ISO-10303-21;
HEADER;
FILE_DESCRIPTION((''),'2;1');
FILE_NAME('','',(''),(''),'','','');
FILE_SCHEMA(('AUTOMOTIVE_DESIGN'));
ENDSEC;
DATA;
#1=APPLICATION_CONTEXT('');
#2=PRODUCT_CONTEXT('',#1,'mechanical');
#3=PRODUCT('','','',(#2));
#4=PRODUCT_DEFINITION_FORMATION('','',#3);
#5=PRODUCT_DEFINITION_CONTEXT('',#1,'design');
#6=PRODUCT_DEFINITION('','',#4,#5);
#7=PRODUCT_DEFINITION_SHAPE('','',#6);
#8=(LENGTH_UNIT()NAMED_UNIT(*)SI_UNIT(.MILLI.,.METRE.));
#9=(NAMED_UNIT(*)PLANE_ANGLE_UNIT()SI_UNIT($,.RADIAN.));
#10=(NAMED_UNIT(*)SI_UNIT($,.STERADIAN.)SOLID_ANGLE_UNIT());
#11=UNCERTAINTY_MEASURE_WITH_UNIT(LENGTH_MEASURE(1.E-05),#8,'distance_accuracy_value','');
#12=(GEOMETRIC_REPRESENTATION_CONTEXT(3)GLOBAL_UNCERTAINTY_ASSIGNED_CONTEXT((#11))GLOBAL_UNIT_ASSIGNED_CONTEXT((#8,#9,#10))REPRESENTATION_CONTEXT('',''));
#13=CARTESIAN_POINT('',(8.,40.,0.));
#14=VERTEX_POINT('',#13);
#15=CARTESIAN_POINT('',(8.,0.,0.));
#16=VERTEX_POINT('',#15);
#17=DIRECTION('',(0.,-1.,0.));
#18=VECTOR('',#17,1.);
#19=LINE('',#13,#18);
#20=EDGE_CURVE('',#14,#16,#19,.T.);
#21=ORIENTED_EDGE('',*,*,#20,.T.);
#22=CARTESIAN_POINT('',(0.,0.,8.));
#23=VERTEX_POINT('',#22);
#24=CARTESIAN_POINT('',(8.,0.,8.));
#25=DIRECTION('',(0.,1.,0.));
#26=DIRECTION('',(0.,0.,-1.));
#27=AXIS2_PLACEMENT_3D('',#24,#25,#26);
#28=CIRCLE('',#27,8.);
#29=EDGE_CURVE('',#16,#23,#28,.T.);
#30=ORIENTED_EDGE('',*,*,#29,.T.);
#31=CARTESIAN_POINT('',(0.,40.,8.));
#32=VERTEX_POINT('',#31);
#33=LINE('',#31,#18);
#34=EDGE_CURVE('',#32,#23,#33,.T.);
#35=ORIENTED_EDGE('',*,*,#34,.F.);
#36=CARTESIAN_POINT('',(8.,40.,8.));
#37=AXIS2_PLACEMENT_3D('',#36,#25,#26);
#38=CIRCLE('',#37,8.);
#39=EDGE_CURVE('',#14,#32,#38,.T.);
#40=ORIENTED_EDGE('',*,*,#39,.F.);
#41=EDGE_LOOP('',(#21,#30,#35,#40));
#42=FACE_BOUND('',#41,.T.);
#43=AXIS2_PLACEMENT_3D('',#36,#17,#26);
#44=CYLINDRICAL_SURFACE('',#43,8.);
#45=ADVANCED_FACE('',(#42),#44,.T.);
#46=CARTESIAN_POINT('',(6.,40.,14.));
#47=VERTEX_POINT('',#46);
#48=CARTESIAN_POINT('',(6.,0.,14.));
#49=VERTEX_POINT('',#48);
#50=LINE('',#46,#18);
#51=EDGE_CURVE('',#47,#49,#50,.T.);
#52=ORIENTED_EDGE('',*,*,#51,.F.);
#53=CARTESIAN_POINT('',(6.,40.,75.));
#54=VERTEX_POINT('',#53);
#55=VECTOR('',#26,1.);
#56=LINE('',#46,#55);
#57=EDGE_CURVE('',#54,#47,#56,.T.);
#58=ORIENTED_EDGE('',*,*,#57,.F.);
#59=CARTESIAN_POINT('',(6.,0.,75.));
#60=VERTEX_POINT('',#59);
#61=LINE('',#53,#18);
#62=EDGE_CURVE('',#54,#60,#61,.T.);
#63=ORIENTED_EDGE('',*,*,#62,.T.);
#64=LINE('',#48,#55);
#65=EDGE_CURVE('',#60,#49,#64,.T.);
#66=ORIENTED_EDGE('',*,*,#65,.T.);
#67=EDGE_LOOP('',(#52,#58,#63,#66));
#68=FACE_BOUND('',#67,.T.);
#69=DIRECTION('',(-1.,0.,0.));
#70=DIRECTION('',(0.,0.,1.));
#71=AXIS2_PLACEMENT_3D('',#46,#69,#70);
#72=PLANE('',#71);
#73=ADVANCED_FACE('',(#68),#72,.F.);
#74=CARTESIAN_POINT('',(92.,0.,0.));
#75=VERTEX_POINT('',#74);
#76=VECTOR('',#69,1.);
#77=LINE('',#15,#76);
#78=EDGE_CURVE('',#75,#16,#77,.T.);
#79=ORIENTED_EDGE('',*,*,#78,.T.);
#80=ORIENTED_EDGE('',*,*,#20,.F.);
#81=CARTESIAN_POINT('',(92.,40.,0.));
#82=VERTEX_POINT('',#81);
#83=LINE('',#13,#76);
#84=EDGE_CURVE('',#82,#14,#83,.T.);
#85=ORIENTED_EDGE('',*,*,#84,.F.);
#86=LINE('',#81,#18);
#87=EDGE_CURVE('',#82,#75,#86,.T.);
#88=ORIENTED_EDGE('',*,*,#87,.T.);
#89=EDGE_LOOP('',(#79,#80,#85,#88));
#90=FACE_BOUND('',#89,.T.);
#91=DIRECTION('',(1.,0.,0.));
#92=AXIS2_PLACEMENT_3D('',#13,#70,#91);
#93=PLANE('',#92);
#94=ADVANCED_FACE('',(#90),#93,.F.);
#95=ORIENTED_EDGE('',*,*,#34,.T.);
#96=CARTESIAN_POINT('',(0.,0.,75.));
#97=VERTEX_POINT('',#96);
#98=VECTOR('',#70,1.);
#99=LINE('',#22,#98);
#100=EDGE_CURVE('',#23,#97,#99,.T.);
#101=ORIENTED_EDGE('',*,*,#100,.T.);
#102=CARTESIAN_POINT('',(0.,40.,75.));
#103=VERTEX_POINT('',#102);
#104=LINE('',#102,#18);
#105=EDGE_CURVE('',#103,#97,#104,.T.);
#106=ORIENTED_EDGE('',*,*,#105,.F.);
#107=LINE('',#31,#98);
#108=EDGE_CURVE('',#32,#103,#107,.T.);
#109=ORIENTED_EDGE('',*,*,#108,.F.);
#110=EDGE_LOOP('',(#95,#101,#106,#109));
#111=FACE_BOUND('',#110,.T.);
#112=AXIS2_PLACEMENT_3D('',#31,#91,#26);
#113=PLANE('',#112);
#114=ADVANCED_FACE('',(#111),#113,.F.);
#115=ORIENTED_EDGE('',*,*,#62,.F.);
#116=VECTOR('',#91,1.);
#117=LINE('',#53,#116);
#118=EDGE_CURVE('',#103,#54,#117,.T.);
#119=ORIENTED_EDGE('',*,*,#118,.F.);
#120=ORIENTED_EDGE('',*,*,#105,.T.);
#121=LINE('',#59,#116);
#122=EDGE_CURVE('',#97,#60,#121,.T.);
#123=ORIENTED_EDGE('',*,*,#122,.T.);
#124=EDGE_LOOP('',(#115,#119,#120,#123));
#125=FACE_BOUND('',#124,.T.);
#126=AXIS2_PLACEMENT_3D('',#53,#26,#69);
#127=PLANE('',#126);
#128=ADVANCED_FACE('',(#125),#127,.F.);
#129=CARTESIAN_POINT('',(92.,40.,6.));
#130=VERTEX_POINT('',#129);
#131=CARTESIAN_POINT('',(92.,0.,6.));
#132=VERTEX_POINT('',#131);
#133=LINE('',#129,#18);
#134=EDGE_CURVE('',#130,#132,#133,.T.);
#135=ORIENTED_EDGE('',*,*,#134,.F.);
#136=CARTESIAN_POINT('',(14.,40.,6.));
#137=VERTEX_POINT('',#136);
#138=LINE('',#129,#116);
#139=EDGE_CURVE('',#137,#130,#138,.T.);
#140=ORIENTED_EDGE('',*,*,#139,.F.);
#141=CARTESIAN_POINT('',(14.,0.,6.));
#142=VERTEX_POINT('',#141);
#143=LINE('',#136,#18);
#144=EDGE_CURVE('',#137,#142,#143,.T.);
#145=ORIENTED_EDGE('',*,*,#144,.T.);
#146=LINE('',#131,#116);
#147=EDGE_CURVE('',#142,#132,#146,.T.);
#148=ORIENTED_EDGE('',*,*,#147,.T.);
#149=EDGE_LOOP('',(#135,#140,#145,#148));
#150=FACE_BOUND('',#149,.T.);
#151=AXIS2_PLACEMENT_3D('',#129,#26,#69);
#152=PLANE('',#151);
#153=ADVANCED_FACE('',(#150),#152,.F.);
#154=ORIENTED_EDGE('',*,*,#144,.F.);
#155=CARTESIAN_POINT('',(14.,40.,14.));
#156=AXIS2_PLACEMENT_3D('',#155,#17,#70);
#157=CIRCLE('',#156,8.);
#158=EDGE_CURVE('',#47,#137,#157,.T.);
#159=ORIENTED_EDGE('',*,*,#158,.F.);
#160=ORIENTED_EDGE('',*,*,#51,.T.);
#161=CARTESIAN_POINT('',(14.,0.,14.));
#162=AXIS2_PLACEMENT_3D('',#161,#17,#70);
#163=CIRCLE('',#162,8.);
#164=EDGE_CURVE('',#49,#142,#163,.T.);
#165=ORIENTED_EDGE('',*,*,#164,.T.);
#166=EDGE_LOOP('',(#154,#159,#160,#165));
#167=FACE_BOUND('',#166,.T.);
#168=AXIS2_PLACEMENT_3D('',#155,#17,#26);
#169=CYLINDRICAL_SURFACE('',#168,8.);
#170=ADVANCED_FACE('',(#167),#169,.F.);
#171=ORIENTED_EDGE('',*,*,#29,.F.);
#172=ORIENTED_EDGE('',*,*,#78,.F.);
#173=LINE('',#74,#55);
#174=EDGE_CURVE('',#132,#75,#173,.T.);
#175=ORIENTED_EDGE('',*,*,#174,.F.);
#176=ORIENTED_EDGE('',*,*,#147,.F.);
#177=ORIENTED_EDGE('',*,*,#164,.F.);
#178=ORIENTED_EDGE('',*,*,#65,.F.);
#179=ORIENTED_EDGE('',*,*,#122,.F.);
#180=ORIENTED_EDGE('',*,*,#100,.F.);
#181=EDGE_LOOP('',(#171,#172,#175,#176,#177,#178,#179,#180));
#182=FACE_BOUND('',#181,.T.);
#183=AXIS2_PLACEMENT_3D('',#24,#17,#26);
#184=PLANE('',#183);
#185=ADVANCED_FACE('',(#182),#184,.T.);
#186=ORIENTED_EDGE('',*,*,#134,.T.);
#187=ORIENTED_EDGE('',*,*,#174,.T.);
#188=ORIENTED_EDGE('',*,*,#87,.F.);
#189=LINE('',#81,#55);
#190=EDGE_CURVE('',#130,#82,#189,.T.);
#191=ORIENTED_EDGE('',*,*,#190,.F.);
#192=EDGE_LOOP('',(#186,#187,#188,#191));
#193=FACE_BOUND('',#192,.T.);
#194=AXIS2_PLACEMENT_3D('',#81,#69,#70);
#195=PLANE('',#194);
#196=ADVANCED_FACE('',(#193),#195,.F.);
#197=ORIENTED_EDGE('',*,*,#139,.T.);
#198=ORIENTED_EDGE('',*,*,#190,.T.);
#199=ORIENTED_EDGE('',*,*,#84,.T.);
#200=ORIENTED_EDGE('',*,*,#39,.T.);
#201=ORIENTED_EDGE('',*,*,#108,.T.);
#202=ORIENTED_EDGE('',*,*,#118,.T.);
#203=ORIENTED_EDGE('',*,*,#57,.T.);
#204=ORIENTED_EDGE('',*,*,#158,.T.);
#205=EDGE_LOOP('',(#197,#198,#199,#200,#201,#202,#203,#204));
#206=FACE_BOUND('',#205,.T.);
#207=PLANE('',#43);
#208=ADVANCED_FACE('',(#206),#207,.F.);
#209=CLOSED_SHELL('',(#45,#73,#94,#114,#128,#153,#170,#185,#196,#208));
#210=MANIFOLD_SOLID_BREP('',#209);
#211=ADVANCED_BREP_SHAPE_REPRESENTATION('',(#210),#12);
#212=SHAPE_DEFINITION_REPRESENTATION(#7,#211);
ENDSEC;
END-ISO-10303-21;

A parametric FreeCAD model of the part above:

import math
import FreeCAD as App
import Part
import Sketcher

V = App.Vector

doc = App.newDocument("Part")
body = doc.addObject("PartDesign::Body", "Body")

sketch1 = doc.addObject("Sketcher::SketchObject", "Sketch")
body.addObject(sketch1)
sketch1.AttachmentSupport = (doc.XZ_Plane, [""])
sketch1.MapMode = "FlatFace"
sketch1.addGeometry(Part.LineSegment(V(0, 8, 0), V(0, 75, 0)), False)
sketch1.addGeometry(Part.LineSegment(V(0, 75, 0), V(6, 75, 0)), False)
sketch1.addGeometry(Part.LineSegment(V(6, 75, 0), V(6, 14, 0)), False)
sketch1.addGeometry(Part.ArcOfCircle(Part.Circle(V(14, 14, 0), V(0, 0, 1), 8), math.radians(-180), math.radians(-90)), False)
sketch1.addGeometry(Part.LineSegment(V(14, 6, 0), V(92, 6, 0)), False)
sketch1.addGeometry(Part.LineSegment(V(92, 6, 0), V(92, 0, 0)), False)
sketch1.addGeometry(Part.LineSegment(V(92, 0, 0), V(8, 0, 0)), False)
sketch1.addGeometry(Part.ArcOfCircle(Part.Circle(V(8, 8, 0), V(0, 0, 1), 8), math.radians(-180), math.radians(-90)), False)
sketch1.addConstraint(Sketcher.Constraint("Coincident", 0, 2, 1, 1))
sketch1.addConstraint(Sketcher.Constraint("Coincident", 1, 2, 2, 1))
sketch1.addConstraint(Sketcher.Constraint("Tangent", 2, 2, 3, 1))
sketch1.addConstraint(Sketcher.Constraint("Tangent", 3, 2, 4, 1))
sketch1.addConstraint(Sketcher.Constraint("Coincident", 4, 2, 5, 1))
sketch1.addConstraint(Sketcher.Constraint("Coincident", 5, 2, 6, 1))
sketch1.addConstraint(Sketcher.Constraint("Tangent", 6, 2, 7, 2))
sketch1.addConstraint(Sketcher.Constraint("Tangent", 7, 1, 0, 1))
sketch1.addConstraint(Sketcher.Constraint("Vertical", 0))
sketch1.addConstraint(Sketcher.Constraint("Horizontal", 1))
sketch1.addConstraint(Sketcher.Constraint("Vertical", 2))
sketch1.addConstraint(Sketcher.Constraint("Horizontal", 4))
sketch1.addConstraint(Sketcher.Constraint("Vertical", 5))
sketch1.addConstraint(Sketcher.Constraint("Horizontal", 6))
sketch1.addConstraint(Sketcher.Constraint("Equal", 3, 7))
sketch1.addConstraint(Sketcher.Constraint("PointOnObject", 0, 2, -2))
sketch1.addConstraint(Sketcher.Constraint("PointOnObject", 5, 2, -1))
sketch1.addConstraint(Sketcher.Constraint("Equal", 1, 5))
sketch1.addConstraint(Sketcher.Constraint("Radius", 3, 8.0))
sketch1.addConstraint(Sketcher.Constraint("DistanceX", 1, 1, 1, 2, 6.0))
sketch1.addConstraint(Sketcher.Constraint("DistanceX", 4, 1, 4, 2, 78.0))
sketch1.addConstraint(Sketcher.Constraint("DistanceY", 0, 1, 0, 2, 67.0))
pad1 = doc.addObject("PartDesign::Pad", "Pad")
body.addObject(pad1)
pad1.Profile = sketch1
pad1.Length = 40
pad1.Reversed = True

doc.recompute()
